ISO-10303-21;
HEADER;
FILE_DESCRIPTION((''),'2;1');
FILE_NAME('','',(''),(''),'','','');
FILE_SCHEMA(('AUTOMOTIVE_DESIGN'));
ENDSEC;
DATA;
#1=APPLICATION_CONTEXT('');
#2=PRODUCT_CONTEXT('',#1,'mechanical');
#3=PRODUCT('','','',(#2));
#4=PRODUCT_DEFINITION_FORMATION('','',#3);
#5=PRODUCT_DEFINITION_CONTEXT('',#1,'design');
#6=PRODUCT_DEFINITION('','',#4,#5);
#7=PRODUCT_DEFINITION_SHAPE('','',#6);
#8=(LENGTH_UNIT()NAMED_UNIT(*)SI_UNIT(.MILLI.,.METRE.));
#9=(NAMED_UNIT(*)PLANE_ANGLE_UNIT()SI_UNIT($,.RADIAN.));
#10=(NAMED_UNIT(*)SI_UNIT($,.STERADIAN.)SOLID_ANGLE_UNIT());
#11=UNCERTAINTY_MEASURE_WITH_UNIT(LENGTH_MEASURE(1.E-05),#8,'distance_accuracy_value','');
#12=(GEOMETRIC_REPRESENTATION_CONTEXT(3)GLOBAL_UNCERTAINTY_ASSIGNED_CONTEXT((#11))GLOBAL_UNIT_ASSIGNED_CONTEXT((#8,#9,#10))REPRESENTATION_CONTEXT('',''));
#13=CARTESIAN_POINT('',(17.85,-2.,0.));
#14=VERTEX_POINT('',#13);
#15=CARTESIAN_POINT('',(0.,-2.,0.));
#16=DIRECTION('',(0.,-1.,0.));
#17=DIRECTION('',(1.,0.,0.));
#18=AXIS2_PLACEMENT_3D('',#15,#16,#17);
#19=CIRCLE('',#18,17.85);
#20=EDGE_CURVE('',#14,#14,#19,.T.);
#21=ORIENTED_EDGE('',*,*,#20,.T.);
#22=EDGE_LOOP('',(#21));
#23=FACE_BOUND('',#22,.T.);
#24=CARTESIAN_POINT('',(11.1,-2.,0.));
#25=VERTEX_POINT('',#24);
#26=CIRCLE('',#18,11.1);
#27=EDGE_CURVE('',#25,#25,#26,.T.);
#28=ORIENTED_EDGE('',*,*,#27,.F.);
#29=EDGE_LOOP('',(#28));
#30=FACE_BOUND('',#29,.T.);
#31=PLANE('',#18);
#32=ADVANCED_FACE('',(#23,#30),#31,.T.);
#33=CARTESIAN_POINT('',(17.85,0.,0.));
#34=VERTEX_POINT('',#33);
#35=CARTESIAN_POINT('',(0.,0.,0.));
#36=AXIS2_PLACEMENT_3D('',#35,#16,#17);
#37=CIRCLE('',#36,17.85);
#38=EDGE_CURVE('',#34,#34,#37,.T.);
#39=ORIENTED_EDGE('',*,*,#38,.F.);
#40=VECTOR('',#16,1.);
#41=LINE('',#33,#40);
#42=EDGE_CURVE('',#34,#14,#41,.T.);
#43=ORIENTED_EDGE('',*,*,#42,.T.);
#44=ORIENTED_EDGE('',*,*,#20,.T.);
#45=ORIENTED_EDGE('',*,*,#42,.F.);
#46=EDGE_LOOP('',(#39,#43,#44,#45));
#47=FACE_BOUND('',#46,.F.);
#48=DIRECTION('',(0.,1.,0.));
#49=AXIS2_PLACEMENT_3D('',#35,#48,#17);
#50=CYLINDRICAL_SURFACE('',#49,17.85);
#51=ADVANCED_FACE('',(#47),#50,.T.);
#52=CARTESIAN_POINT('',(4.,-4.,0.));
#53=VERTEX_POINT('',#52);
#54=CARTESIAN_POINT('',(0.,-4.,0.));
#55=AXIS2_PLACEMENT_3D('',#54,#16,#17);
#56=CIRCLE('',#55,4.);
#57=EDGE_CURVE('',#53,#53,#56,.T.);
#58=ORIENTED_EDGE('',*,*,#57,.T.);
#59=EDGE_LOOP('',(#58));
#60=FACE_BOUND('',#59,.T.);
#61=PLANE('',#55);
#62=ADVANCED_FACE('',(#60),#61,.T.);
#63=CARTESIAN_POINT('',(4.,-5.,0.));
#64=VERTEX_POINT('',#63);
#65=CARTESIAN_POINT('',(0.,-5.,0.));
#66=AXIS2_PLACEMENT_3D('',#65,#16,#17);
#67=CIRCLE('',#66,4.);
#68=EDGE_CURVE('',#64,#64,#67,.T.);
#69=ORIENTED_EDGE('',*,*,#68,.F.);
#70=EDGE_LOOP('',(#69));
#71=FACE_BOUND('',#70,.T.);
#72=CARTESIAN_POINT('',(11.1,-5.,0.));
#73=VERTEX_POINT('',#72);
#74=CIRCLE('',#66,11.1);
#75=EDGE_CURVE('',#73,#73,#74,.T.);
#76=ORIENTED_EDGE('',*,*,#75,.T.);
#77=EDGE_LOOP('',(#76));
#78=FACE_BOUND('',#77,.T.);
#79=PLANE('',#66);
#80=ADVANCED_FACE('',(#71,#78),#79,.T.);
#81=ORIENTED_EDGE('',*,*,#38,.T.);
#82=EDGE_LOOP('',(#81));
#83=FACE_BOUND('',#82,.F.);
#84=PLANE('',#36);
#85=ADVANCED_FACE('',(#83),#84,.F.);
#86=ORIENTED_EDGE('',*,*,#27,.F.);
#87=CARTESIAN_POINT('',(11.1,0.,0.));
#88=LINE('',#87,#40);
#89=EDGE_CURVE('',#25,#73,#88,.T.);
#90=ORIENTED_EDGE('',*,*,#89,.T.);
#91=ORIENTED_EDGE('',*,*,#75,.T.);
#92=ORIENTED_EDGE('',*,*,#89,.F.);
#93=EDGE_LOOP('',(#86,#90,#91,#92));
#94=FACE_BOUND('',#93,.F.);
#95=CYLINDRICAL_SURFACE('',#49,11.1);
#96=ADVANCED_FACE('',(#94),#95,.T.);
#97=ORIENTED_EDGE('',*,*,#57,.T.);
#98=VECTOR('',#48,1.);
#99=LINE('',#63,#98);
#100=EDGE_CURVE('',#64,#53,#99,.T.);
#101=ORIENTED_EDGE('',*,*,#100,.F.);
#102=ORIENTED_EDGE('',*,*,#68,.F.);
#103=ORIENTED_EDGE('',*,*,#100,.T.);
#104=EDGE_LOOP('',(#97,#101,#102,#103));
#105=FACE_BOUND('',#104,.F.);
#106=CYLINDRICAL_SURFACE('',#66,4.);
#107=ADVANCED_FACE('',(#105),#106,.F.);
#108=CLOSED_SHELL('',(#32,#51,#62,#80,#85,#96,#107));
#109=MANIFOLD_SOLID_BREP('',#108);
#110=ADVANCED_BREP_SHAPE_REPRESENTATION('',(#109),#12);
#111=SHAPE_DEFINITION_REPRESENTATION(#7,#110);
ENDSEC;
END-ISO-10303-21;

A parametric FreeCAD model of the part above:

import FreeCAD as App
import Part
import Sketcher

V = App.Vector

doc = App.newDocument("Part")
body = doc.addObject("PartDesign::Body", "Body")

# Sketch on XZ plane
sketch1 = body.newObject("Sketcher::SketchObject", "Sketch")
sketch1.AttachmentSupport = (doc.getObject("XZ_Plane"), [""])
sketch1.MapMode = "FlatFace"
sketch1.addGeometry([
    Part.Circle(V(0, 0, 0), V(0, 0, 1), 18),
    Part.Circle(V(0, 0, 0), V(0, 0, 1), 11),
], False)
sketch1.addConstraint([
    Sketcher.Constraint("Coincident", 0, 3, -1, 1),
    Sketcher.Constraint("Coincident", 1, 3, -1, 1),
    Sketcher.Constraint("Diameter", 0, 35.7),
    Sketcher.Constraint("Diameter", 1, 22.2),
])
pad1 = body.newObject("PartDesign::Pad", "Pad")
pad1.Profile = sketch1
pad1.Length = 2

# Sketch on XZ plane
sketch2 = body.newObject("Sketcher::SketchObject", "Sketch001")
sketch2.AttachmentSupport = (doc.getObject("XZ_Plane"), [""])
sketch2.MapMode = "FlatFace"
sketch2.addGeometry(Part.Circle(V(0, 0, 0), V(0, 0, 1), 11), False)
sketch2.addConstraint([
    Sketcher.Constraint("Coincident", 0, 3, -1, 1),
    Sketcher.Constraint("Diameter", 0, 22.2),
])
pad2 = body.newObject("PartDesign::Pad", "Pad001")
pad2.Profile = sketch2
pad2.Length = 5

# Sketch on XZ plane
sketch3 = body.newObject("Sketcher::SketchObject", "Sketch002")
sketch3.AttachmentSupport = (doc.getObject("XZ_Plane"), [""])
sketch3.MapMode = "FlatFace"
sketch3.AttachmentOffset = App.Placement(V(0, 0, 5), App.Rotation())
sketch3.addGeometry(Part.Circle(V(0, 0, 0), V(0, 0, 1), 4), False)
sketch3.addConstraint([
    Sketcher.Constraint("Coincident", 0, 3, -1, 1),
    Sketcher.Constraint("Diameter", 0, 8.0),
])
pocket1 = body.newObject("PartDesign::Pocket", "Pocket")
pocket1.Profile = sketch3
pocket1.Length = 1

doc.recompute()
